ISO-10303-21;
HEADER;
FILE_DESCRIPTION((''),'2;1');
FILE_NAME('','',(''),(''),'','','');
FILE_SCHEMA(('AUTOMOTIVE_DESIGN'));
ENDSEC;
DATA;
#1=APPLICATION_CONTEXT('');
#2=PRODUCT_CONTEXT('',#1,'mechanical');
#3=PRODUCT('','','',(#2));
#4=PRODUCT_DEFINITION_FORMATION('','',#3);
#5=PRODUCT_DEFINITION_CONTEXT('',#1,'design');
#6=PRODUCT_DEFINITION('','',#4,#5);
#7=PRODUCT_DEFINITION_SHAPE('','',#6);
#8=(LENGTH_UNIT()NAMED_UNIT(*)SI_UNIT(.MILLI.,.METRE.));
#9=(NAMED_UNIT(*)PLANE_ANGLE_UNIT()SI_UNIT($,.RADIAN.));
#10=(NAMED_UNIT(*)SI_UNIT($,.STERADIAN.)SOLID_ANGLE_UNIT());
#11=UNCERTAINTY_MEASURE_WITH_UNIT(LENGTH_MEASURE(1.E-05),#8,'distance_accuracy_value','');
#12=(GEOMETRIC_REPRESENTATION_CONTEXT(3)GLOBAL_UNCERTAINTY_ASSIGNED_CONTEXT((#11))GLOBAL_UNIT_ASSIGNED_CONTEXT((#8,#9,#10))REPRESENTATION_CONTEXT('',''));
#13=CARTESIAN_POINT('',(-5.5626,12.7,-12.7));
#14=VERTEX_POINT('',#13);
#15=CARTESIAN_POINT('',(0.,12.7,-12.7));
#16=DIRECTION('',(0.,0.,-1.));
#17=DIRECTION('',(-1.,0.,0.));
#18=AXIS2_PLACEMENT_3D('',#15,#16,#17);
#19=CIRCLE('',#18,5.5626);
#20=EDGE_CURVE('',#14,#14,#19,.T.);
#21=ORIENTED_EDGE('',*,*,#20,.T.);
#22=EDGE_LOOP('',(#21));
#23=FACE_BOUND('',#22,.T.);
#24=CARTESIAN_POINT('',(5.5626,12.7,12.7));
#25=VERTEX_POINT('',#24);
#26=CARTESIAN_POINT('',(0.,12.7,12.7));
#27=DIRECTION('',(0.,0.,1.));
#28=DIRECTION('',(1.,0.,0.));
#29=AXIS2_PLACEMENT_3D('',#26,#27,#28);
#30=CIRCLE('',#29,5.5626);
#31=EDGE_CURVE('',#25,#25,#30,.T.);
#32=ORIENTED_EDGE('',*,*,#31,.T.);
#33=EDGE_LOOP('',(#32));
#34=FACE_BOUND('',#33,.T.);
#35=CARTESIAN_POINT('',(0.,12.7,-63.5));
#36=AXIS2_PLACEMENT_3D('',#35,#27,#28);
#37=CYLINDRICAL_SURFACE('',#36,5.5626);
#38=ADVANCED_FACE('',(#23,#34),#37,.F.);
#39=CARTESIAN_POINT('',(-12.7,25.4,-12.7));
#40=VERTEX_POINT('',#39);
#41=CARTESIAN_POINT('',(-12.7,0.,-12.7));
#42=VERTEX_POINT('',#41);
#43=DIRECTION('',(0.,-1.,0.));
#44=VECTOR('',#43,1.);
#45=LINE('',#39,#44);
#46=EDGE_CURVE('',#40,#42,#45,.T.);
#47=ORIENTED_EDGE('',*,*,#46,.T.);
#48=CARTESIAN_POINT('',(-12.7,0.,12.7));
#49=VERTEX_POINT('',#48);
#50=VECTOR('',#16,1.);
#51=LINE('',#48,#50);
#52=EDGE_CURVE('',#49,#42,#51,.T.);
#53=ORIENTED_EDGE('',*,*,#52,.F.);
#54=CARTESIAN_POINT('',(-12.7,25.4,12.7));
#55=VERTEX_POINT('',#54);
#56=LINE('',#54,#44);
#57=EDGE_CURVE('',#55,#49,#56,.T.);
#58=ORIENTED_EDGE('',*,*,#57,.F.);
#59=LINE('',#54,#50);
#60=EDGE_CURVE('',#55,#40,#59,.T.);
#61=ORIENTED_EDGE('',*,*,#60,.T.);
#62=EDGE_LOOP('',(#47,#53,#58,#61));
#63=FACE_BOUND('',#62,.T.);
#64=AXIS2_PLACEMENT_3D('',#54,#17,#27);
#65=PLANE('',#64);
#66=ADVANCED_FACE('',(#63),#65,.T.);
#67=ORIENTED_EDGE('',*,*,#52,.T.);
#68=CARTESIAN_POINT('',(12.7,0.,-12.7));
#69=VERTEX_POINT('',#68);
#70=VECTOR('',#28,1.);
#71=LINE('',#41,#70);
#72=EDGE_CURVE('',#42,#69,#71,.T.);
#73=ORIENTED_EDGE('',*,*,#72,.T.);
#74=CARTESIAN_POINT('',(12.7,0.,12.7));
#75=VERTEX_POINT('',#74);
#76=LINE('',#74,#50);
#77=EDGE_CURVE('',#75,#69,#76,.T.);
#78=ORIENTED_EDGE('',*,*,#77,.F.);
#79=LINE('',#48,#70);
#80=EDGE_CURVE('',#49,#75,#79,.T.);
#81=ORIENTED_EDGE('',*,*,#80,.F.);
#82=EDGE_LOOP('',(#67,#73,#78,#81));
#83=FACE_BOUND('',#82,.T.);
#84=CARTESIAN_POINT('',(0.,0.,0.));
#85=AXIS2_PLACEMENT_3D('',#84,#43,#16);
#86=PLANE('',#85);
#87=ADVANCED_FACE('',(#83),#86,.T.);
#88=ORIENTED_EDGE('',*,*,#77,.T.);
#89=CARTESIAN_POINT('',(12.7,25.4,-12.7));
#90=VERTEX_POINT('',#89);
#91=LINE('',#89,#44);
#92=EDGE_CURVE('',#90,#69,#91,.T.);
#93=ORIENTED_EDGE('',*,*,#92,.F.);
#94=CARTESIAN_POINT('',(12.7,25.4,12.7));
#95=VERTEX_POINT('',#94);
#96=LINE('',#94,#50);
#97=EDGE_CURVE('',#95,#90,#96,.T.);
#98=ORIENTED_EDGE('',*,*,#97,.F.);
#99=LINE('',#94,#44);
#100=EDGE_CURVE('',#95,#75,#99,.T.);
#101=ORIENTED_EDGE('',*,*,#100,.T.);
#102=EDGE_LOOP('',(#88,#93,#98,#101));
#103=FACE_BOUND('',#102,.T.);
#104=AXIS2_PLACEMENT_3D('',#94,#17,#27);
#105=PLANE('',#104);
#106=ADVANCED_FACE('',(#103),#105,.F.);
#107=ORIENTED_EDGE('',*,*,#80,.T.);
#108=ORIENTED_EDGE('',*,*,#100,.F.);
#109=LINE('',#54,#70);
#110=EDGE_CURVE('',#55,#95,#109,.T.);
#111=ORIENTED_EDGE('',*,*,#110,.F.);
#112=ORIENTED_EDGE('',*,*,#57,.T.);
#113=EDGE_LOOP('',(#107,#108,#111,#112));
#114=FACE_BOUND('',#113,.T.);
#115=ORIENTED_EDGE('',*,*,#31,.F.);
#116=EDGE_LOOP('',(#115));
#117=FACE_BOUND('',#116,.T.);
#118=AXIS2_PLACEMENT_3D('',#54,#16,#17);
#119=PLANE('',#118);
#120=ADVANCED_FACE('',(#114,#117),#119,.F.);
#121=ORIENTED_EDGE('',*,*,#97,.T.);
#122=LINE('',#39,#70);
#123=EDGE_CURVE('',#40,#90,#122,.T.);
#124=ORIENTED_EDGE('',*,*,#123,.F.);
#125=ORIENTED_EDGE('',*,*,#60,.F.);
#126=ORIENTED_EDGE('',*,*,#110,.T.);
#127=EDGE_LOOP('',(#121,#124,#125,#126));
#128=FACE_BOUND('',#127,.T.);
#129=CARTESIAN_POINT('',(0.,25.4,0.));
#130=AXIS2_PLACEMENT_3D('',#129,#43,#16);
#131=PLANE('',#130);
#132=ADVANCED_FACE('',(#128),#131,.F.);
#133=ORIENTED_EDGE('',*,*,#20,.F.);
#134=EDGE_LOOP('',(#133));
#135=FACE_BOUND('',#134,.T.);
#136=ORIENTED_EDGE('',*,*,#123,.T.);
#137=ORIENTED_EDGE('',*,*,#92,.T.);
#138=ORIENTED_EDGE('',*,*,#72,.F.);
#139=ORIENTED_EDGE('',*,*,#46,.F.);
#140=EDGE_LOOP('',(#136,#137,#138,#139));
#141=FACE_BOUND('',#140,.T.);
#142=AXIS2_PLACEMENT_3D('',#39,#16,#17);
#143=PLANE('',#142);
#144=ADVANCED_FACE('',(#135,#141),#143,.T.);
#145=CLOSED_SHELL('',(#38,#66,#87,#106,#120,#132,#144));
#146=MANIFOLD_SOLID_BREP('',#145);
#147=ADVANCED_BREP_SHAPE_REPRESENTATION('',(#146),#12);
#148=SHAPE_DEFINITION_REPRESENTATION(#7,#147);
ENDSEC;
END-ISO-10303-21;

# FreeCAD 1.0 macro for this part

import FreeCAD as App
import Part
import Sketcher
Q = App.Units.Quantity

doc = App.newDocument("Part")
body = doc.addObject("PartDesign::Body", "Body")

sketch1 = body.newObject("Sketcher::SketchObject", "Sketch")
sketch1.AttachmentSupport = (doc.getObject("XZ_Plane"), [""])
sketch1.MapMode = "FlatFace"
sketch1.addGeometry([
    Part.LineSegment(App.Vector(-13, -13, 0), App.Vector(-13, 13, 0)),
    Part.LineSegment(App.Vector(-13, 13, 0), App.Vector(13, 13, 0)),
    Part.LineSegment(App.Vector(13, 13, 0), App.Vector(13, -13, 0)),
    Part.LineSegment(App.Vector(13, -13, 0), App.Vector(-13, -13, 0)),
], False)
sketch1.addConstraint([
    Sketcher.Constraint("Coincident", 0, 2, 1, 1),
    Sketcher.Constraint("Coincident", 1, 2, 2, 1),
    Sketcher.Constraint("Coincident", 2, 2, 3, 1),
    Sketcher.Constraint("Coincident", 3, 2, 0, 1),
    Sketcher.Constraint("Vertical", 0),
    Sketcher.Constraint("Horizontal", 1),
    Sketcher.Constraint("Vertical", 2),
    Sketcher.Constraint("Horizontal", 3),
    Sketcher.Constraint("Symmetric", 0, 2, 2, 2, -1, 1),
    Sketcher.Constraint("Equal", 3, 0),
    Sketcher.Constraint("DistanceX", 1, 1, 1, 2, Q("1 in")),
])
pad1 = body.newObject("PartDesign::Pad", "Pad")
pad1.Profile = sketch1
pad1.Length = Q("1 in")
pad1.Reversed = True

sketch2 = body.newObject("Sketcher::SketchObject", "Sketch001")
sketch2.AttachmentSupport = (doc.getObject("XY_Plane"), [""])
sketch2.MapMode = "FlatFace"
sketch2.AttachmentOffset = App.Placement(App.Vector(0, 0, 0.5 * 25.4), App.Rotation())
sketch2.addGeometry(Part.Circle(App.Vector(0, 13, 0), App.Vector(0, 0, 1), 6), False)
sketch2.addConstraint([
    Sketcher.Constraint("PointOnObject", 0, 3, -2),
    Sketcher.Constraint("Diameter", 0, Q("0.438 in")),
    Sketcher.Constraint("DistanceY", -1, 1, 0, 3, Q("0.5 in")),
])
pocket1 = body.newObject("PartDesign::Pocket", "Pocket")
pocket1.Profile = sketch2
pocket1.Length = Q("3 in")

doc.recompute()
